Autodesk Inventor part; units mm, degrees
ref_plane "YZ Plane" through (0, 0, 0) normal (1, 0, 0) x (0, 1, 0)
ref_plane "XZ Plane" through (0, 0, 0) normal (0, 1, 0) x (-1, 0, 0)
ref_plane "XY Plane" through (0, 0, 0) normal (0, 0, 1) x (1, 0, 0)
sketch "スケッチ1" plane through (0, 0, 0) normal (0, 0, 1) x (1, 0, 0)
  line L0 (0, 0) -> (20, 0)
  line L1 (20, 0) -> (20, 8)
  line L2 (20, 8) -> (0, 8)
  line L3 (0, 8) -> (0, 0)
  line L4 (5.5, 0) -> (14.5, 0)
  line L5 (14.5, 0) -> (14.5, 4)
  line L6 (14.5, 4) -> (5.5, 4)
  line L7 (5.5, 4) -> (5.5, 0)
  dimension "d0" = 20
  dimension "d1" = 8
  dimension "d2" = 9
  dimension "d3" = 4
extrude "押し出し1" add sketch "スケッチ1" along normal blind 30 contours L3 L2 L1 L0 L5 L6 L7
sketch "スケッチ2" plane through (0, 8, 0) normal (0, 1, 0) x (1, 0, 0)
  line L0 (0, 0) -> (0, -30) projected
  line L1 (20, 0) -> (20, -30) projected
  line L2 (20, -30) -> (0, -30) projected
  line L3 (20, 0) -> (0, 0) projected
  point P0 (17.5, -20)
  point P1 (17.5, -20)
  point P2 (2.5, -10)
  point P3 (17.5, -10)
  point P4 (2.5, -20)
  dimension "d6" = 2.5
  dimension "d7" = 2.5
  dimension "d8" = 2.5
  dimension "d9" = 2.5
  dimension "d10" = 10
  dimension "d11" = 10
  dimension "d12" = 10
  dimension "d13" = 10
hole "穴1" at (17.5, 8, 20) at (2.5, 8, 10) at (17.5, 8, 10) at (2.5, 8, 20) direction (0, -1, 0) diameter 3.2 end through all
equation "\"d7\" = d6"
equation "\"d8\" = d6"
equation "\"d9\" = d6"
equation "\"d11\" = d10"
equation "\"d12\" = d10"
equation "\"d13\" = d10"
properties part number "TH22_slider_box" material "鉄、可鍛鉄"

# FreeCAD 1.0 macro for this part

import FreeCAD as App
import Part
import Sketcher

V = App.Vector

doc = App.newDocument("Part")
body = doc.addObject("PartDesign::Body", "Body")

# Sketch on XY plane
sketch1 = body.newObject("Sketcher::SketchObject", "Sketch")
sketch1.AttachmentSupport = (doc.getObject("XY_Plane"), [""])
sketch1.MapMode = "FlatFace"
sketch1.addGeometry(Part.LineSegment(V(0, 8, 0), V(0, 0, 0)), False)
sketch1.addGeometry(Part.LineSegment(V(0, 0, 0), V(5.5, 0, 0)), False)
sketch1.addGeometry(Part.LineSegment(V(5.5, 0, 0), V(5.5, 4, 0)), False)
sketch1.addGeometry(Part.LineSegment(V(5.5, 4, 0), V(14.5, 4, 0)), False)
sketch1.addGeometry(Part.LineSegment(V(14.5, 4, 0), V(14.5, 0, 0)), False)
sketch1.addGeometry(Part.LineSegment(V(14.5, 0, 0), V(20, 0, 0)), False)
sketch1.addGeometry(Part.LineSegment(V(20, 0, 0), V(20, 8, 0)), False)
sketch1.addGeometry(Part.LineSegment(V(20, 8, 0), V(0, 8, 0)), False)
sketch1.addConstraint(Sketcher.Constraint("Coincident", 0, 2, 1, 1))
sketch1.addConstraint(Sketcher.Constraint("Coincident", 1, 2, 2, 1))
sketch1.addConstraint(Sketcher.Constraint("Coincident", 2, 2, 3, 1))
sketch1.addConstraint(Sketcher.Constraint("Coincident", 3, 2, 4, 1))
sketch1.addConstraint(Sketcher.Constraint("Coincident", 4, 2, 5, 1))
sketch1.addConstraint(Sketcher.Constraint("Coincident", 5, 2, 6, 1))
sketch1.addConstraint(Sketcher.Constraint("Coincident", 6, 2, 7, 1))
sketch1.addConstraint(Sketcher.Constraint("Coincident", 7, 2, 0, 1))
sketch1.addConstraint(Sketcher.Constraint("Vertical", 0))
sketch1.addConstraint(Sketcher.Constraint("Horizontal", 1))
sketch1.addConstraint(Sketcher.Constraint("Vertical", 2))
sketch1.addConstraint(Sketcher.Constraint("Horizontal", 3))
sketch1.addConstraint(Sketcher.Constraint("Vertical", 4))
sketch1.addConstraint(Sketcher.Constraint("Horizontal", 5))
sketch1.addConstraint(Sketcher.Constraint("Vertical", 6))
sketch1.addConstraint(Sketcher.Constraint("Horizontal", 7))
sketch1.addConstraint(Sketcher.Constraint("Coincident", 0, 2, -1, 1))
sketch1.addConstraint(Sketcher.Constraint("PointOnObject", 4, 2, -1))
sketch1.addConstraint(Sketcher.Constraint("Equal", 1, 5))
sketch1.addConstraint(Sketcher.Constraint("DistanceX", 3, 1, 3, 2, 9.0))
sketch1.addConstraint(Sketcher.Constraint("DistanceX", 7, 2, 7, 1, 20.0))
sketch1.addConstraint(Sketcher.Constraint("DistanceY", 0, 2, 0, 1, 8.0))
sketch1.addConstraint(Sketcher.Constraint("DistanceY", 2, 1, 2, 2, 4.0))
pad1 = body.newObject("PartDesign::Pad", "Pad")
pad1.Profile = sketch1
pad1.Length = 30

# Sketch on XZ plane
sketch2 = body.newObject("Sketcher::SketchObject", "Sketch001")
sketch2.AttachmentSupport = (doc.getObject("XZ_Plane"), [""])
sketch2.MapMode = "FlatFace"
sketch2.AttachmentOffset = App.Placement(V(0, 0, -8), App.Rotation())
sketch2.addGeometry(Part.Circle(V(17.5, 20, 0), V(0, 0, 1), 1.6), False)
sketch2.addGeometry(Part.Circle(V(2.5, 10, 0), V(0, 0, 1), 1.6), False)
sketch2.addGeometry(Part.Circle(V(17.5, 10, 0), V(0, 0, 1), 1.6), False)
sketch2.addGeometry(Part.Circle(V(2.5, 20, 0), V(0, 0, 1), 1.6), False)
sketch2.addConstraint(Sketcher.Constraint("Equal", 0, 1))
sketch2.addConstraint(Sketcher.Constraint("Equal", 1, 2))
sketch2.addConstraint(Sketcher.Constraint("Equal", 2, 3))
sketch2.addConstraint(Sketcher.Constraint("Horizontal", 1, 3, 2, 3))
sketch2.addConstraint(Sketcher.Constraint("Horizontal", 0, 3, 3, 3))
sketch2.addConstraint(Sketcher.Constraint("Vertical", 0, 3, 2, 3))
sketch2.addConstraint(Sketcher.Constraint("Vertical", 1, 3, 3, 3))
sketch2.addConstraint(Sketcher.Constraint("Diameter", 0, 3.2))
sketch2.addConstraint(Sketcher.Constraint("DistanceY", -1, 1, 0, 3, 20.0))
sketch2.addConstraint(Sketcher.Constraint("DistanceY", -1, 1, 1, 3, 10.0))
sketch2.addConstraint(Sketcher.Constraint("DistanceX", 1, 3, 0, 3, 15.0))
sketch2.addConstraint(Sketcher.Constraint("DistanceX", -1, 1, 0, 3, 17.5))
doc.recompute()
hole = body.newObject("PartDesign::Hole", "Hole")
hole.Profile = sketch2
hole.ThreadType = "None"
hole.Diameter = 3.2
hole.DepthType = "ThroughAll"
hole.Reversed = True

doc.recompute()
